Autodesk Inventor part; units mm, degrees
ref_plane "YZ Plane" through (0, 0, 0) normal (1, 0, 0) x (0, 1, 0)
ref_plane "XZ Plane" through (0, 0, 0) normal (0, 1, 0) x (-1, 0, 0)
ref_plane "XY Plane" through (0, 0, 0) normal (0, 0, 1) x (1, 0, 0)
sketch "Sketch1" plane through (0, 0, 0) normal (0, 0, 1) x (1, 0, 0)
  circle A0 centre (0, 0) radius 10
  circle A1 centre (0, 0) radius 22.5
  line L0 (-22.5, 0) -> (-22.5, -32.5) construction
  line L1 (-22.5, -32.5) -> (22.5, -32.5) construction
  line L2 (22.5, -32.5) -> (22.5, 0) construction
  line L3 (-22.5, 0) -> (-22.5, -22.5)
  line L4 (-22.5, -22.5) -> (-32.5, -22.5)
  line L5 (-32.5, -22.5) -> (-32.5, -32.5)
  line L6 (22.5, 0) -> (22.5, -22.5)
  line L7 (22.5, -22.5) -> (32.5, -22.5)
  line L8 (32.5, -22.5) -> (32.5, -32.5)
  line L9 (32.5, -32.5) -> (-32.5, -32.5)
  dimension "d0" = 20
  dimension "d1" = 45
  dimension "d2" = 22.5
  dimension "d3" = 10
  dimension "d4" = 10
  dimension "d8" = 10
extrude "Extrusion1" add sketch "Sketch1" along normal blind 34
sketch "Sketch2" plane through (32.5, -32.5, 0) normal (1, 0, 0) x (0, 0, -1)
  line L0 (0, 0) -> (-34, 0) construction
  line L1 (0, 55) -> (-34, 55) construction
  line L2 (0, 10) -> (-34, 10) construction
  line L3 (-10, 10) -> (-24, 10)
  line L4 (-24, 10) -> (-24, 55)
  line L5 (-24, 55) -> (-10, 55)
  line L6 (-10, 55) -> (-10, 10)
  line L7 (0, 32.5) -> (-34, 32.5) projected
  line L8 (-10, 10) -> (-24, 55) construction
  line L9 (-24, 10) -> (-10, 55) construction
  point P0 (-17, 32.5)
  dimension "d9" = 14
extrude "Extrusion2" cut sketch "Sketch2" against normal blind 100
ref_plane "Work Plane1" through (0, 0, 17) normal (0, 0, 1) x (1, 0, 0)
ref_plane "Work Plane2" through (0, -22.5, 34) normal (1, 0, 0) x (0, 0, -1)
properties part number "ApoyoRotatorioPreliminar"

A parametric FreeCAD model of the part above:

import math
import FreeCAD as App
import Part
import Sketcher
Q = App.Units.Quantity

doc = App.newDocument("Part")
body = doc.addObject("PartDesign::Body", "Body")

sketch1 = body.newObject("Sketcher::SketchObject", "Sketch")
sketch1.AttachmentSupport = (doc.getObject("XY_Plane"), [""])
sketch1.MapMode = "FlatFace"
sketch1.addGeometry(Part.ArcOfCircle(Part.Circle(App.Vector(0, 0, 0), App.Vector(0, 0, 1), 22), math.radians(0), math.radians(180)), False)
sketch1.addGeometry(Part.LineSegment(App.Vector(-22, 0, 0), App.Vector(-22, -22, 0)), False)
sketch1.addGeometry(Part.LineSegment(App.Vector(-22, -22, 0), App.Vector(-32, -22, 0)), False)
sketch1.addGeometry(Part.LineSegment(App.Vector(-32, -22, 0), App.Vector(-32, -32, 0)), False)
sketch1.addGeometry(Part.LineSegment(App.Vector(-32, -32, 0), App.Vector(32, -32, 0)), False)
sketch1.addGeometry(Part.LineSegment(App.Vector(32, -32, 0), App.Vector(32, -22, 0)), False)
sketch1.addGeometry(Part.LineSegment(App.Vector(32, -22, 0), App.Vector(22, -22, 0)), False)
sketch1.addGeometry(Part.LineSegment(App.Vector(22, -22, 0), App.Vector(22, 0, 0)), False)
sketch1.addGeometry(Part.Circle(App.Vector(0, 0, 0), App.Vector(0, 0, 1), 10), False)
sketch1.addConstraint(Sketcher.Constraint("Tangent", 0, 2, 1, 1))
sketch1.addConstraint(Sketcher.Constraint("Coincident", 1, 2, 2, 1))
sketch1.addConstraint(Sketcher.Constraint("Coincident", 2, 2, 3, 1))
sketch1.addConstraint(Sketcher.Constraint("Coincident", 3, 2, 4, 1))
sketch1.addConstraint(Sketcher.Constraint("Coincident", 4, 2, 5, 1))
sketch1.addConstraint(Sketcher.Constraint("Coincident", 5, 2, 6, 1))
sketch1.addConstraint(Sketcher.Constraint("Coincident", 6, 2, 7, 1))
sketch1.addConstraint(Sketcher.Constraint("Tangent", 7, 2, 0, 1))
sketch1.addConstraint(Sketcher.Constraint("Vertical", 1))
sketch1.addConstraint(Sketcher.Constraint("Horizontal", 2))
sketch1.addConstraint(Sketcher.Constraint("Vertical", 3))
sketch1.addConstraint(Sketcher.Constraint("Horizontal", 4))
sketch1.addConstraint(Sketcher.Constraint("Vertical", 5))
sketch1.addConstraint(Sketcher.Constraint("Horizontal", 6))
sketch1.addConstraint(Sketcher.Constraint("Vertical", 7))
sketch1.addConstraint(Sketcher.Constraint("Coincident", 0, 3, -1, 1))
sketch1.addConstraint(Sketcher.Constraint("Coincident", 8, 3, -1, 1))
sketch1.addConstraint(Sketcher.Constraint("Symmetric", 2, 2, 5, 2, -2))
sketch1.addConstraint(Sketcher.Constraint("Equal", 6, 3))
sketch1.addConstraint(Sketcher.Constraint("Diameter", 8, Q("20 mm")))
sketch1.addConstraint(Sketcher.Constraint("Radius", 0, Q("22.5 mm")))
sketch1.addConstraint(Sketcher.Constraint("DistanceX", 2, 2, 2, 1, Q("10 mm")))
sketch1.addConstraint(Sketcher.Constraint("DistanceY", 1, 2, 1, 1, Q("22.5 mm")))
pad1 = body.newObject("PartDesign::Pad", "Pad")
pad1.Profile = sketch1
pad1.Length = 34

sketch2 = body.newObject("Sketcher::SketchObject", "Sketch001")
sketch2.AttachmentSupport = (doc.getObject("YZ_Plane"), [""])
sketch2.MapMode = "FlatFace"
sketch2.AttachmentOffset = App.Placement(App.Vector(0, 0, 32.5), App.Rotation())
sketch2.addGeometry(Part.LineSegment(App.Vector(-22, 24, 0), App.Vector(-22, 10, 0)), False)
sketch2.addGeometry(Part.LineSegment(App.Vector(-22, 10, 0), App.Vector(22, 10, 0)), False)
sketch2.addGeometry(Part.LineSegment(App.Vector(22, 10, 0), App.Vector(22, 24, 0)), False)
sketch2.addGeometry(Part.LineSegment(App.Vector(22, 24, 0), App.Vector(-22, 24, 0)), False)
sketch2.addConstraint(Sketcher.Constraint("Coincident", 0, 2, 1, 1))
sketch2.addConstraint(Sketcher.Constraint("Coincident", 1, 2, 2, 1))
sketch2.addConstraint(Sketcher.Constraint("Coincident", 2, 2, 3, 1))
sketch2.addConstraint(Sketcher.Constraint("Coincident", 3, 2, 0, 1))
sketch2.addConstraint(Sketcher.Constraint("Vertical", 0))
sketch2.addConstraint(Sketcher.Constraint("Horizontal", 1))
sketch2.addConstraint(Sketcher.Constraint("Vertical", 2))
sketch2.addConstraint(Sketcher.Constraint("Horizontal", 3))
sketch2.addConstraint(Sketcher.Constraint("DistanceY", 0, 2, 0, 1, Q("14 mm")))
sketch2.addConstraint(Sketcher.Constraint("DistanceX", 1, 1, 1, 2, Q("45 mm")))
sketch2.addConstraint(Sketcher.Constraint("DistanceY", -1, 1, 0, 2, Q("10 mm")))
sketch2.addConstraint(Sketcher.Constraint("DistanceX", 0, 2, -1, 1, Q("22.5 mm")))
pocket1 = body.newObject("PartDesign::Pocket", "Pocket")
pocket1.Profile = sketch2
pocket1.Length = 100

doc.recompute()
